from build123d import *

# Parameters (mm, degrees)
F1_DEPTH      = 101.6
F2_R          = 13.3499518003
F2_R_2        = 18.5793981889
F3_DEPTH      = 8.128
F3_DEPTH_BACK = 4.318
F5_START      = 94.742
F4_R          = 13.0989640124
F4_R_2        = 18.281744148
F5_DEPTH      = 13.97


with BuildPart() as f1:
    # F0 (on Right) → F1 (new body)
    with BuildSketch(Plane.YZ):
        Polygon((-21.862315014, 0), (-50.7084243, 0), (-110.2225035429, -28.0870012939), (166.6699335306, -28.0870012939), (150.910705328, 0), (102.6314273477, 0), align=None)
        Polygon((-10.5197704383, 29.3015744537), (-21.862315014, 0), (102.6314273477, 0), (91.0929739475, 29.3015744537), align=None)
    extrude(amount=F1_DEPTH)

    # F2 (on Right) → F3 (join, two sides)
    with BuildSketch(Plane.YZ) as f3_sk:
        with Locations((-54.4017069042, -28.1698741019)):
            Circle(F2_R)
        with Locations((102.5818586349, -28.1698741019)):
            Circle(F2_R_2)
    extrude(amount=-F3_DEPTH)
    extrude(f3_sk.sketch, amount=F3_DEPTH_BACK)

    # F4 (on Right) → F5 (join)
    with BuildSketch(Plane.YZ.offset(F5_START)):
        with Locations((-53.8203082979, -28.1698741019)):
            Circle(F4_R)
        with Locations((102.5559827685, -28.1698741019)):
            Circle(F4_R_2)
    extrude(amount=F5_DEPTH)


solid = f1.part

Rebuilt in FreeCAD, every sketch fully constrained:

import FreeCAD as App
import Part
import Sketcher
from FreeCAD import Vector
Q = App.Units.Quantity


def add_polygon(sketch, points):
    """Adds a closed chain of lines whose ends are joined by coincident constraints."""
    first, n = sketch.GeometryCount, len(points)
    for a, b in zip(points, points[1:] + points[:1]):
        sketch.addGeometry(Part.LineSegment(App.Vector(*a, 0), App.Vector(*b, 0)), False)
    for i in range(n):
        sketch.addConstraint(Sketcher.Constraint("Coincident", first + i, 2, first + (i + 1) % n, 1))

doc = App.newDocument("Part")
body = doc.addObject("PartDesign::Body", "Body")

sketch1 = doc.addObject("Sketcher::SketchObject", "Sketch")
body.addObject(sketch1)
sketch1.AttachmentSupport = (doc.YZ_Plane, [""])
sketch1.MapMode = "FlatFace"
add_polygon(sketch1, [(-51, 0), (-110, -28), (167, -28), (151, 0), (103, 0), (91, 29), (-11, 29), (-22, 0)])
sketch1.addConstraint([
    Sketcher.Constraint("Horizontal", 1),
    Sketcher.Constraint("Horizontal", 3),
    Sketcher.Constraint("Horizontal", 5),
    Sketcher.Constraint("Horizontal", 7),
    Sketcher.Constraint("PointOnObject", 2, 2, -1),
    Sketcher.Constraint("PointOnObject", 6, 2, -1),
    Sketcher.Constraint("Distance", 2, 32.206101),
    Sketcher.Constraint("DistanceX", 7, 2, 7, 1, 28.846109),
    Sketcher.Constraint("DistanceY", 0, 2, -1, 1, 28.087001),
    Sketcher.Constraint("DistanceX", 7, 2, 4, 2, 141.801398),
    Sketcher.Constraint("DistanceX", 1, 1, 1, 2, 276.892437),
    Sketcher.Constraint("DistanceX", 3, 2, 3, 1, 48.279278),
    Sketcher.Constraint("DistanceX", 5, 2, 5, 1, 101.612744),
    Sketcher.Constraint("DistanceX", 5, 2, -1, 1, 10.51977),
    Sketcher.Constraint("DistanceX", 4, 2, 2, 2, 59.817731),
    Sketcher.Constraint("Distance", 4, 31.491557),
])
pad1 = doc.addObject("PartDesign::Pad", "Pad")
body.addObject(pad1)
pad1.Profile = sketch1
pad1.Length = Q("4 in")

sketch2 = doc.addObject("Sketcher::SketchObject", "Sketch001")
body.addObject(sketch2)
sketch2.AttachmentSupport = (doc.YZ_Plane, [""])
sketch2.MapMode = "FlatFace"
sketch2.addGeometry([
    Part.Circle(Vector(-54, -28, 0), Vector(0, 0, 1), 13),
    Part.Circle(Vector(103, -28, 0), Vector(0, 0, 1), 19),
], False)
sketch2.addConstraint([
    Sketcher.Constraint("Horizontal", 0, 3, 1, 3),
    Sketcher.Constraint("Diameter", 0, 26.699904),
    Sketcher.Constraint("Diameter", 1, 37.158796),
    Sketcher.Constraint("DistanceX", -1, 1, 1, 3, 102.581859),
    Sketcher.Constraint("DistanceX", 0, 3, -1, 1, 54.401707),
    Sketcher.Constraint("DistanceY", 0, 3, -1, 1, 28.169874),
])
pad2 = doc.addObject("PartDesign::Pad", "Pad001")
body.addObject(pad2)
pad2.Profile = sketch2
pad2.Type = "TwoLengths"
pad2.Length = Q("0.32 in")
pad2.Length2 = Q("0.17 in")
pad2.Reversed = True

sketch3 = doc.addObject("Sketcher::SketchObject", "Sketch002")
body.addObject(sketch3)
sketch3.AttachmentSupport = (doc.YZ_Plane, [""])
sketch3.MapMode = "FlatFace"
sketch3.AttachmentOffset = App.Placement(Vector(0, 0, 3.73 * 25.4), App.Rotation())
sketch3.addGeometry([
    Part.Circle(Vector(-54, -28, 0), Vector(0, 0, 1), 13),
    Part.Circle(Vector(103, -28, 0), Vector(0, 0, 1), 18),
], False)
sketch3.addConstraint([
    Sketcher.Constraint("Horizontal", 0, 3, 1, 3),
    Sketcher.Constraint("Diameter", 0, 26.197928),
    Sketcher.Constraint("Diameter", 1, 36.563488),
    Sketcher.Constraint("DistanceX", 0, 3, -1, 1, 53.820308),
    Sketcher.Constraint("DistanceX", 0, 3, 1, 3, 156.376291),
    Sketcher.Constraint("DistanceY", 0, 3, -1, 1, 28.169874),
])
pad3 = doc.addObject("PartDesign::Pad", "Pad002")
body.addObject(pad3)
pad3.Profile = sketch3
pad3.Length = Q("0.55 in")

doc.recompute()
